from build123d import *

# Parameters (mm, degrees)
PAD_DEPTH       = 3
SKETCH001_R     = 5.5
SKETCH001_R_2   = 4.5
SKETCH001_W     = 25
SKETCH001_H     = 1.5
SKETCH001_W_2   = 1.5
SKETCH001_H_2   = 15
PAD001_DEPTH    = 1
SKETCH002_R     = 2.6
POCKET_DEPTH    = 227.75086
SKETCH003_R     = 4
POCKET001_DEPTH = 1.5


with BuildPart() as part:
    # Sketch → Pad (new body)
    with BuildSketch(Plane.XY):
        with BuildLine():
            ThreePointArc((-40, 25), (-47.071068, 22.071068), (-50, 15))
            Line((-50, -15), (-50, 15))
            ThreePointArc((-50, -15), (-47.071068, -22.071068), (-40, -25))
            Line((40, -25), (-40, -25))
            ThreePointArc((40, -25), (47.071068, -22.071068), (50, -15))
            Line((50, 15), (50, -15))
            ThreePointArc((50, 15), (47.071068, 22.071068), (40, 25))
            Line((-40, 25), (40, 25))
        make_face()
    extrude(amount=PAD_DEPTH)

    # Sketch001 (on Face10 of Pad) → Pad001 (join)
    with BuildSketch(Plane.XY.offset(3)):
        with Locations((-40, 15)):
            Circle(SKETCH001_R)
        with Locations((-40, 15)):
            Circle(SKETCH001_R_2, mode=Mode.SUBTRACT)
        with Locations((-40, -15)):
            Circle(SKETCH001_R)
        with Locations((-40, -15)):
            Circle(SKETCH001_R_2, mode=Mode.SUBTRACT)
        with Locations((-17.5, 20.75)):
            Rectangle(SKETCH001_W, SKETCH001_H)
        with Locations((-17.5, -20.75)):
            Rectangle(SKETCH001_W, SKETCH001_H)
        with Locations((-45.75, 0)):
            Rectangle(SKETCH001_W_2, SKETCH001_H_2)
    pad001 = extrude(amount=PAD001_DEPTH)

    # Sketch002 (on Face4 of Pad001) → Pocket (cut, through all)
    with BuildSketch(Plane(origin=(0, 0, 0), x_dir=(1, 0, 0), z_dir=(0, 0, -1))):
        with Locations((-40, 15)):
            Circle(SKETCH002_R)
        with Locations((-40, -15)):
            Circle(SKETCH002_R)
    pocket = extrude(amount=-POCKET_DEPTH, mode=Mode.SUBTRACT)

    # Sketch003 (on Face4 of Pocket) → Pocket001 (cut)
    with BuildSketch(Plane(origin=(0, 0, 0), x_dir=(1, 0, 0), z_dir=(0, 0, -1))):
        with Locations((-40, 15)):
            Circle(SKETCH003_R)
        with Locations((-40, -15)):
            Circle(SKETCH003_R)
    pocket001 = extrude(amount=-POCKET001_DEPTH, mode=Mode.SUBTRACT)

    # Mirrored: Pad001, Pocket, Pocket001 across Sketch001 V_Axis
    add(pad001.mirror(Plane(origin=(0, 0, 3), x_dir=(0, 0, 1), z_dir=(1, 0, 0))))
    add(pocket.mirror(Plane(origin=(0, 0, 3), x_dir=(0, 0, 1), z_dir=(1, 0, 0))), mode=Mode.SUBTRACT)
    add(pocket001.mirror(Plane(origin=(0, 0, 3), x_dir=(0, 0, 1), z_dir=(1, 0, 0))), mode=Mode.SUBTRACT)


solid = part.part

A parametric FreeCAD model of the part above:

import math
import FreeCAD as App
import Part
import Sketcher

V = App.Vector
Q = App.Units.Quantity


def add_polygon(sketch, points):
    """Adds a closed chain of lines whose ends are joined by coincident constraints."""
    first, n = sketch.GeometryCount, len(points)
    for a, b in zip(points, points[1:] + points[:1]):
        sketch.addGeometry(Part.LineSegment(App.Vector(*a, 0), App.Vector(*b, 0)), False)
    for i in range(n):
        sketch.addConstraint(Sketcher.Constraint("Coincident", first + i, 2, first + (i + 1) % n, 1))

doc = App.newDocument("Part")
body = doc.addObject("PartDesign::Body", "Body")

sketch1 = doc.addObject("Sketcher::SketchObject", "Sketch")
body.addObject(sketch1)
sketch1.AttachmentSupport = (doc.XY_Plane, [""])
sketch1.MapMode = "FlatFace"
sketch1.addGeometry([
    Part.ArcOfCircle(Part.Circle(V(-40, 15, 0), V(0, 0, 1), 10), math.radians(90), math.radians(180)),
    Part.LineSegment(V(-50, 15, 0), V(-50, -15, 0)),
    Part.ArcOfCircle(Part.Circle(V(-40, -15, 0), V(0, 0, 1), 10), math.radians(180), math.radians(270)),
    Part.LineSegment(V(-40, -25, 0), V(40, -25, 0)),
    Part.ArcOfCircle(Part.Circle(V(40, -15, 0), V(0, 0, 1), 10), math.radians(-90), math.radians(0)),
    Part.LineSegment(V(50, -15, 0), V(50, 15, 0)),
    Part.ArcOfCircle(Part.Circle(V(40, 15, 0), V(0, 0, 1), 10), math.radians(0), math.radians(90)),
    Part.LineSegment(V(40, 25, 0), V(-40, 25, 0)),
], False)
sketch1.addConstraint([
    Sketcher.Constraint("Tangent", 0, 2, 1, 1),
    Sketcher.Constraint("Tangent", 1, 2, 2, 1),
    Sketcher.Constraint("Tangent", 2, 2, 3, 1),
    Sketcher.Constraint("Tangent", 3, 2, 4, 1),
    Sketcher.Constraint("Tangent", 4, 2, 5, 1),
    Sketcher.Constraint("Tangent", 5, 2, 6, 1),
    Sketcher.Constraint("Tangent", 6, 2, 7, 1),
    Sketcher.Constraint("Tangent", 7, 2, 0, 1),
    Sketcher.Constraint("Vertical", 1),
    Sketcher.Constraint("Horizontal", 3),
    Sketcher.Constraint("Vertical", 5),
    Sketcher.Constraint("Horizontal", 7),
    Sketcher.Constraint("Equal", 0, 2),
    Sketcher.Constraint("Equal", 2, 4),
    Sketcher.Constraint("Equal", 4, 6),
    Sketcher.Constraint("Symmetric", 0, 3, 4, 3, -1, 1),
    Sketcher.Constraint("Radius", 0, Q("9.999999 mm")),
    Sketcher.Constraint("DistanceX", 3, 1, 3, 2, Q("80 mm")),
    Sketcher.Constraint("DistanceY", 1, 2, 1, 1, Q("30 mm")),
])
pad1 = doc.addObject("PartDesign::Pad", "Pad")
body.addObject(pad1)
pad1.Profile = sketch1
pad1.Length = 3

sketch2 = doc.addObject("Sketcher::SketchObject", "Sketch001")
body.addObject(sketch2)
sketch2.AttachmentSupport = (doc.XY_Plane, [""])
sketch2.MapMode = "FlatFace"
sketch2.AttachmentOffset = App.Placement(V(0, 0, 3), App.Rotation())
sketch2.addGeometry(Part.Circle(V(-40, 15, 0), V(0, 0, 1), 5.5), False)
sketch2.addGeometry(Part.Circle(V(-40, 15, 0), V(0, 0, 1), 4.5), False)
sketch2.addGeometry(Part.Circle(V(-40, -15, 0), V(0, 0, 1), 5.5), False)
sketch2.addGeometry(Part.Circle(V(-40, -15, 0), V(0, 0, 1), 4.5), False)
add_polygon(sketch2, [(-30, 21.5), (-30, 20), (-5, 20), (-5, 21.5)])
add_polygon(sketch2, [(-30, -20), (-30, -21.5), (-5, -21.5), (-5, -20)])
add_polygon(sketch2, [(-46.5, 7.5), (-46.5, -7.5), (-45, -7.5), (-45, 7.5)])
sketch2.addConstraint([
    Sketcher.Constraint("Vertical", 4),
    Sketcher.Constraint("Horizontal", 5),
    Sketcher.Constraint("Vertical", 6),
    Sketcher.Constraint("Horizontal", 7),
    Sketcher.Constraint("Vertical", 8),
    Sketcher.Constraint("Horizontal", 9),
    Sketcher.Constraint("Vertical", 10),
    Sketcher.Constraint("Horizontal", 11),
    Sketcher.Constraint("Vertical", 12),
    Sketcher.Constraint("Horizontal", 13),
    Sketcher.Constraint("Vertical", 14),
    Sketcher.Constraint("Horizontal", 15),
    Sketcher.Constraint("Coincident", 1, 3, 0, 3),
    Sketcher.Constraint("Coincident", 3, 3, 2, 3),
    Sketcher.Constraint("Equal", 0, 2),
    Sketcher.Constraint("Equal", 1, 3),
    Sketcher.Constraint("Symmetric", 0, 3, 2, 3, -1),
    Sketcher.Constraint("Symmetric", 7, 2, 8, 2, -1),
    Sketcher.Constraint("Symmetric", 5, 2, 10, 2, -1),
    Sketcher.Constraint("Equal", 15, 4),
    Sketcher.Constraint("Diameter", 0, Q("11 mm")),
    Sketcher.Constraint("Diameter", 1, Q("9 mm")),
    Sketcher.Constraint("DistanceX", 5, 1, 5, 2, Q("25 mm")),
    Sketcher.Constraint("DistanceY", 12, 2, 12, 1, Q("15 mm")),
    Sketcher.Constraint("DistanceX", 13, 1, 13, 2, Q("1.5 mm")),
    Sketcher.Constraint("DistanceX", 0, 3, -1, 1, Q("40 mm")),
    Sketcher.Constraint("DistanceY", -1, 1, 0, 3, Q("15 mm")),
    Sketcher.Constraint("DistanceX", 4, 2, -1, 1, Q("30 mm")),
    Sketcher.Constraint("DistanceY", -1, 1, 4, 2, Q("20 mm")),
    Sketcher.Constraint("DistanceX", 13, 2, -1, 1, Q("45 mm")),
    Sketcher.Constraint("DistanceY", 8, 2, 12, 2, Q("14 mm")),
])
pad2 = doc.addObject("PartDesign::Pad", "Pad001")
body.addObject(pad2)
pad2.Profile = sketch2
pad2.Length = 1

sketch3 = doc.addObject("Sketcher::SketchObject", "Sketch002")
body.addObject(sketch3)
sketch3.AttachmentSupport = (doc.XY_Plane, [""])
sketch3.MapMode = "FlatFace"
sketch3.addGeometry([
    Part.Circle(V(-40, -15, 0), V(0, 0, 1), 2.6),
    Part.Circle(V(-40, 15, 0), V(0, 0, 1), 2.6),
], False)
sketch3.addConstraint([
    Sketcher.Constraint("Equal", 0, 1),
    Sketcher.Constraint("Symmetric", 0, 3, 1, 3, -1),
    Sketcher.Constraint("Diameter", 0, Q("5.2 mm")),
    Sketcher.Constraint("DistanceX", 0, 3, -1, 1, Q("40 mm")),
    Sketcher.Constraint("DistanceY", 0, 3, -1, 1, Q("15 mm")),
])
pocket1 = doc.addObject("PartDesign::Pocket", "Pocket")
body.addObject(pocket1)
pocket1.Profile = sketch3
pocket1.Type = "ThroughAll"
pocket1.Reversed = True

sketch4 = doc.addObject("Sketcher::SketchObject", "Sketch003")
body.addObject(sketch4)
sketch4.AttachmentSupport = (doc.XY_Plane, [""])
sketch4.MapMode = "FlatFace"
sketch4.addGeometry([
    Part.Circle(V(-40, -15, 0), V(0, 0, 1), 4),
    Part.Circle(V(-40, 15, 0), V(0, 0, 1), 4),
], False)
sketch4.addConstraint([
    Sketcher.Constraint("Equal", 0, 1),
    Sketcher.Constraint("Symmetric", 0, 3, 1, 3, -1),
    Sketcher.Constraint("Diameter", 0, Q("8 mm")),
    Sketcher.Constraint("DistanceX", 0, 3, -1, 1, Q("40 mm")),
    Sketcher.Constraint("DistanceY", 0, 3, -1, 1, Q("15 mm")),
])
pocket2 = doc.addObject("PartDesign::Pocket", "Pocket001")
body.addObject(pocket2)
pocket2.Profile = sketch4
pocket2.Length = 1.5
pocket2.Reversed = True
doc.recompute()

mirrored = doc.addObject("PartDesign::Mirrored", "Mirrored")
body.addObject(mirrored)
mirrored.Originals = [pad2, pocket1, pocket2]
mirrored.MirrorPlane = (doc.YZ_Plane, [""])
body.Tip = mirrored

doc.recompute()
